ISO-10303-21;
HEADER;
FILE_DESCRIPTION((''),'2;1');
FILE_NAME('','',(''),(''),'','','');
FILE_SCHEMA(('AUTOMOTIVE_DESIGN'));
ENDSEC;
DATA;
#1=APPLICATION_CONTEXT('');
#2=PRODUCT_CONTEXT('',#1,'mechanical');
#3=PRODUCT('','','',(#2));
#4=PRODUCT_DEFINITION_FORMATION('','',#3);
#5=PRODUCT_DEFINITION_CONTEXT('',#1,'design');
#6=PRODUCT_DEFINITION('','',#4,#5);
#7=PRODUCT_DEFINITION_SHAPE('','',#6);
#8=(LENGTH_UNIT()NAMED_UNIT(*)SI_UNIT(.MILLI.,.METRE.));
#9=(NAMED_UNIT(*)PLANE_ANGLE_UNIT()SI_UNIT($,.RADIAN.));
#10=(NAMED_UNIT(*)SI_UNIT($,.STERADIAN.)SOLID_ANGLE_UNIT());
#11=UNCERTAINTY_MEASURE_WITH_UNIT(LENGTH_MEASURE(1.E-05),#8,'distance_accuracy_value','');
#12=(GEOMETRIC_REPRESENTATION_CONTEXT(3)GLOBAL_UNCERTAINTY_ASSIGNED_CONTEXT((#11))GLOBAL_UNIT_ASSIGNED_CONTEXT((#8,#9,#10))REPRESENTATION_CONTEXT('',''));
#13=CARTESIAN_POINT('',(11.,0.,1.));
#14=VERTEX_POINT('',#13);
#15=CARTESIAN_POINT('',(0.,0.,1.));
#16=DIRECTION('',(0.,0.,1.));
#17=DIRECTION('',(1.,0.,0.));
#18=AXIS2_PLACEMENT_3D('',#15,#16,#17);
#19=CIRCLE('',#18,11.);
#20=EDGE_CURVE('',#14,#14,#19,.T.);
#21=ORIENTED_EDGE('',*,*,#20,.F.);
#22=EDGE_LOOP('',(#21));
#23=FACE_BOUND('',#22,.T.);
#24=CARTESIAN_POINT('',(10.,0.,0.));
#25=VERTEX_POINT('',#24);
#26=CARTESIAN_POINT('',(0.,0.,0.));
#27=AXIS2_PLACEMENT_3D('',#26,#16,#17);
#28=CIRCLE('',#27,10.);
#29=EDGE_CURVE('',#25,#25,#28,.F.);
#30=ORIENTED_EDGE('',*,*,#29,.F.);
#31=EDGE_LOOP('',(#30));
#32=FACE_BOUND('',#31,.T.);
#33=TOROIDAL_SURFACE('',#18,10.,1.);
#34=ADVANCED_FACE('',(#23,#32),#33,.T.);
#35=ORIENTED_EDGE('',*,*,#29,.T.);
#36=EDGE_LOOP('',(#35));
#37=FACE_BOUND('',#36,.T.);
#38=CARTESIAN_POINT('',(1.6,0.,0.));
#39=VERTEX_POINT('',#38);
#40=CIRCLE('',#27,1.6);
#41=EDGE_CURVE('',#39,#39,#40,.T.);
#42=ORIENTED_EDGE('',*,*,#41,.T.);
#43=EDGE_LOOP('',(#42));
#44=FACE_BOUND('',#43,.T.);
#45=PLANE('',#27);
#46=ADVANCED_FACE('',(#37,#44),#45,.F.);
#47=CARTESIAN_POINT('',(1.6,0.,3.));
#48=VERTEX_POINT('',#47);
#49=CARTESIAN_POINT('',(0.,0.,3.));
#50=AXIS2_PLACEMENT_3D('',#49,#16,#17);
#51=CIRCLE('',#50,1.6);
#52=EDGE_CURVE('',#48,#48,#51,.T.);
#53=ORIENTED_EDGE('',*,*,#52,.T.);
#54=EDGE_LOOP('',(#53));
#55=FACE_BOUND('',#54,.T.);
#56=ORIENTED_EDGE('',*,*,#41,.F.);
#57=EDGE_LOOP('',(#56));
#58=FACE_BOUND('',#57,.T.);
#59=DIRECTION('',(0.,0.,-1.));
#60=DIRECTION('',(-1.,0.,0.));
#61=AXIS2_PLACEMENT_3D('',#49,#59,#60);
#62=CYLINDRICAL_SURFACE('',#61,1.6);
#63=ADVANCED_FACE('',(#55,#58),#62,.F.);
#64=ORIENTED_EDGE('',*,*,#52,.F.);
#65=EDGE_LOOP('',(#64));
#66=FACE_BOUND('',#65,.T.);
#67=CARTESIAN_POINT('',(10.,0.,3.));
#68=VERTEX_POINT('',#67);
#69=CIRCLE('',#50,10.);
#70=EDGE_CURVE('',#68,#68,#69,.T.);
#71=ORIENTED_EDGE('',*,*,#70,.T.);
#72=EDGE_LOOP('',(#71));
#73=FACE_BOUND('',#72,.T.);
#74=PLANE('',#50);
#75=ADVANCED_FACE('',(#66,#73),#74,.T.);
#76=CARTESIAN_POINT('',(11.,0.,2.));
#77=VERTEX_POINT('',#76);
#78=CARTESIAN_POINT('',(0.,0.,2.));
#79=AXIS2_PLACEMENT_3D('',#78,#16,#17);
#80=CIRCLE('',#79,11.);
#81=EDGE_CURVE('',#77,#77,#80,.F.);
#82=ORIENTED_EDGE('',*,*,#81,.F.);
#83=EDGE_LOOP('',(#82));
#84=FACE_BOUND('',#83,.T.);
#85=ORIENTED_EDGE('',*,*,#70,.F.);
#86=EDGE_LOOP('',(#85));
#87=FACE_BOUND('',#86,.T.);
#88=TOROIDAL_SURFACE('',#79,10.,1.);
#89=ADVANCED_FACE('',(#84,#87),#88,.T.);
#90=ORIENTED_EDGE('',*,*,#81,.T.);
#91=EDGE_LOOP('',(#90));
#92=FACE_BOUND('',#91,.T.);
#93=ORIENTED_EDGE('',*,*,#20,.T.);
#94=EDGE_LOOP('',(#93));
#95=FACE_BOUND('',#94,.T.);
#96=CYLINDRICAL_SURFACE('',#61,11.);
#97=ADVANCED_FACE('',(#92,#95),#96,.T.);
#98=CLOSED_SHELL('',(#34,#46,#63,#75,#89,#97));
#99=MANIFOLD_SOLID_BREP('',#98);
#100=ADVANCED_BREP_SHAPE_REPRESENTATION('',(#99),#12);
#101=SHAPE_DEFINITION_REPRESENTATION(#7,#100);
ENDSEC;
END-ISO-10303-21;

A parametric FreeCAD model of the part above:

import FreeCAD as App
import Part
import Sketcher
from FreeCAD import Vector
Q = App.Units.Quantity


def edges_at(feature, points):
    """Names of the edges that pass closest to the given points."""
    edges = feature.Shape.Edges
    near = lambda p: min(range(len(edges)), key=lambda i: edges[i].distToShape(Part.Vertex(*p))[0])
    return sorted({f"Edge{near(p) + 1}" for p in points})

doc = App.newDocument("Part")
body = doc.addObject("PartDesign::Body", "Body")

# Sketch on XY plane
sketch1 = doc.addObject("Sketcher::SketchObject", "Sketch")
body.addObject(sketch1)
sketch1.AttachmentSupport = (doc.XY_Plane, [""])
sketch1.MapMode = "FlatFace"
sketch1.addGeometry(Part.Circle(Vector(0, 0, 0), Vector(0, 0, 1), 11), False)
sketch1.addGeometry(Part.Circle(Vector(0, 0, 0), Vector(0, 0, 1), 1.6), False)
sketch1.addConstraint(Sketcher.Constraint("Coincident", 0, 3, -1, 1))
sketch1.addConstraint(Sketcher.Constraint("Coincident", 1, 3, -1, 1))
sketch1.addConstraint(Sketcher.Constraint("Diameter", 0, Q("22 mm")))
sketch1.addConstraint(Sketcher.Constraint("Diameter", 1, Q("3.2 mm")))
pad1 = doc.addObject("PartDesign::Pad", "Pad")
body.addObject(pad1)
pad1.Profile = sketch1
pad1.Length = 3
doc.recompute()

fillet = doc.addObject("PartDesign::Fillet", "Fillet")
body.addObject(fillet)
fillet.Base = (pad1, edges_at(pad1, [(-11, 0, 0), (-11, 0, 3)]))
fillet.Radius = 1

doc.recompute()
